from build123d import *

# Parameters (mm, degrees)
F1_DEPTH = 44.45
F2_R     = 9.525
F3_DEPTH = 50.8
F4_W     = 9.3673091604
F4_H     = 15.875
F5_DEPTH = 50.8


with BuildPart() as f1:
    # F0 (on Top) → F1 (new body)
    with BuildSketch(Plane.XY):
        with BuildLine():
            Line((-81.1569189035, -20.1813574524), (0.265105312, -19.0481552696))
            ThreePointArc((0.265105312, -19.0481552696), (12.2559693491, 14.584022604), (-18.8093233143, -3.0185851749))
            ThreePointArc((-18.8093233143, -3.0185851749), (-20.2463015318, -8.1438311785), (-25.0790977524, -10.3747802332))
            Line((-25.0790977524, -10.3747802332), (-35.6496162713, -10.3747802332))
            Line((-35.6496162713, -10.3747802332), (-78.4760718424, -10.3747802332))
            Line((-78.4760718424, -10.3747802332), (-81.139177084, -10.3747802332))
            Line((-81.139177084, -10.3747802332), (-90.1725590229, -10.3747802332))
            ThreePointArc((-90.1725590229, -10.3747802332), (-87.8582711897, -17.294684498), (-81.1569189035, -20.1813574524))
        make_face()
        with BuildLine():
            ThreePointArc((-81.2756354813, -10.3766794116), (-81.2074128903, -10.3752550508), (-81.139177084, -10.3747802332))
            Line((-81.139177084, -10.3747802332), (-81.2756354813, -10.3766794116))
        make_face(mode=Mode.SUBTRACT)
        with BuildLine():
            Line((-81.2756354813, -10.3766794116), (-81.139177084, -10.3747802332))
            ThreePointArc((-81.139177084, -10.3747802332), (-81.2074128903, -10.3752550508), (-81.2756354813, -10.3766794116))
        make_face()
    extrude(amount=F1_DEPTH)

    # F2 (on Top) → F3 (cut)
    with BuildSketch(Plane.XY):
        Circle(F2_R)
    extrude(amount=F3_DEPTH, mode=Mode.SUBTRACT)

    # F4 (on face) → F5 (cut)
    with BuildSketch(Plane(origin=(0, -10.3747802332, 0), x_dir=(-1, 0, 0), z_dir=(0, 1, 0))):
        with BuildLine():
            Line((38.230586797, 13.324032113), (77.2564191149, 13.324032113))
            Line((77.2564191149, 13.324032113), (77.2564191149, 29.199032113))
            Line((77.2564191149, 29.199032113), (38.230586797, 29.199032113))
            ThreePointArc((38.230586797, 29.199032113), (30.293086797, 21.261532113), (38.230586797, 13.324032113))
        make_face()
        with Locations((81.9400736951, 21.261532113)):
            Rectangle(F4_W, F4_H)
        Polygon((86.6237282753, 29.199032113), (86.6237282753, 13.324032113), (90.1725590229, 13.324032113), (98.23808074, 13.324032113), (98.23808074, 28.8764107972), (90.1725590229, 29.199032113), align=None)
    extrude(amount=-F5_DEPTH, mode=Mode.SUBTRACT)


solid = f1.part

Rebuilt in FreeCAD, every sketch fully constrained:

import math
import FreeCAD as App
import Part
import Sketcher
from FreeCAD import Vector
Q = App.Units.Quantity

doc = App.newDocument("Part")
body = doc.addObject("PartDesign::Body", "Body")

sketch1 = doc.addObject("Sketcher::SketchObject", "Sketch")
body.addObject(sketch1)
sketch1.AttachmentSupport = (doc.XY_Plane, [""])
sketch1.MapMode = "FlatFace"
sketch1.addGeometry([
    Part.ArcOfCircle(Part.Circle(Vector(-81.281248, -11.248123, 0), Vector(0, 0, 1), 8.934099), math.radians(174.390156), math.radians(270.79737)),
    Part.LineSegment(Vector(-81.156919, -20.181357, 0), Vector(0.265105, -19.048155, 0)),
    Part.ArcOfCircle(Part.Circle(Vector(0, 0, 0), Vector(0, 0, 1), 19.05), math.radians(-89.20263), math.radians(189.117283)),
    Part.ArcOfCircle(Part.Circle(Vector(-25.079098, -4.02478, 0), Vector(0, 0, 1), 6.35), math.radians(-90), math.radians(9.117283)),
    Part.LineSegment(Vector(-25.079098, -10.37478, 0), Vector(-90.172559, -10.37478, 0)),
], False)
sketch1.addConstraint([
    Sketcher.Constraint("Tangent", 0, 2, 1, 1),
    Sketcher.Constraint("Tangent", 1, 2, 2, 1),
    Sketcher.Constraint("Tangent", 2, 2, 3, 2),
    Sketcher.Constraint("Tangent", 3, 1, 4, 1),
    Sketcher.Constraint("Coincident", 4, 2, 0, 1),
    Sketcher.Constraint("Horizontal", 4),
    Sketcher.Constraint("Coincident", 2, 3, -1, 1),
    Sketcher.Constraint("Radius", 2, Q("0.75 in")),
    Sketcher.Constraint("Radius", 3, Q("0.25 in")),
    Sketcher.Constraint("Radius", 0, Q("8.934099 mm")),
    Sketcher.Constraint("DistanceX", 4, 2, 4, 1, Q("65.093461 mm")),
    Sketcher.Constraint("Distance", 1, Q("81.42991 mm")),
    Sketcher.Constraint("DistanceX", 0, 3, -1, 1, Q("81.281248 mm")),
])
pad1 = doc.addObject("PartDesign::Pad", "Pad")
body.addObject(pad1)
pad1.Profile = sketch1
pad1.Length = Q("1.75 in")

sketch2 = doc.addObject("Sketcher::SketchObject", "Sketch001")
body.addObject(sketch2)
sketch2.AttachmentSupport = (doc.XY_Plane, [""])
sketch2.MapMode = "FlatFace"
sketch2.addGeometry(Part.Circle(Vector(0, 0, 0), Vector(0, 0, 1), 9.525), False)
sketch2.addConstraint([
    Sketcher.Constraint("Coincident", 0, 3, -1, 1),
    Sketcher.Constraint("Diameter", 0, Q("0.75 in")),
])
pocket1 = doc.addObject("PartDesign::Pocket", "Pocket")
body.addObject(pocket1)
pocket1.Profile = sketch2
pocket1.Length = Q("2 in")
pocket1.Reversed = True

sketch3 = doc.addObject("Sketcher::SketchObject", "Sketch002")
body.addObject(sketch3)
sketch3.AttachmentSupport = (doc.XZ_Plane, [""])
sketch3.MapMode = "FlatFace"
sketch3.AttachmentOffset = App.Placement(Vector(0, 0, 10.37478), App.Rotation())
sketch3.addGeometry([
    Part.LineSegment(Vector(-38.230587, 13.324032, 0), Vector(-98.238081, 13.324032, 0)),
    Part.LineSegment(Vector(-98.238081, 13.324032, 0), Vector(-98.238081, 28.876411, 0)),
    Part.LineSegment(Vector(-98.238081, 28.876411, 0), Vector(-90.172559, 29.199032, 0)),
    Part.LineSegment(Vector(-90.172559, 29.199032, 0), Vector(-38.230587, 29.199032, 0)),
    Part.ArcOfCircle(Part.Circle(Vector(-38.230587, 21.261532, 0), Vector(0, 0, 1), 7.9375), math.radians(-90), math.radians(90)),
], False)
sketch3.addConstraint([
    Sketcher.Constraint("Coincident", 0, 2, 1, 1),
    Sketcher.Constraint("Coincident", 1, 2, 2, 1),
    Sketcher.Constraint("Coincident", 2, 2, 3, 1),
    Sketcher.Constraint("Tangent", 3, 2, 4, 2),
    Sketcher.Constraint("Tangent", 4, 1, 0, 1),
    Sketcher.Constraint("Horizontal", 0),
    Sketcher.Constraint("Vertical", 1),
    Sketcher.Constraint("Horizontal", 3),
    Sketcher.Constraint("Radius", 4, Q("0.3125 in")),
    Sketcher.Constraint("DistanceY", 1, 1, 1, 2, Q("15.552379 mm")),
    Sketcher.Constraint("Distance", 2, Q("8.071972 mm")),
    Sketcher.Constraint("DistanceX", 0, 2, 0, 1, Q("60.007494 mm")),
    Sketcher.Constraint("DistanceX", 0, 2, -1, 1, Q("98.238081 mm")),
    Sketcher.Constraint("DistanceY", -1, 1, 1, 2, Q("28.876411 mm")),
])
pocket2 = doc.addObject("PartDesign::Pocket", "Pocket001")
body.addObject(pocket2)
pocket2.Profile = sketch3
pocket2.Length = Q("2 in")
pocket2.Reversed = True

doc.recompute()
